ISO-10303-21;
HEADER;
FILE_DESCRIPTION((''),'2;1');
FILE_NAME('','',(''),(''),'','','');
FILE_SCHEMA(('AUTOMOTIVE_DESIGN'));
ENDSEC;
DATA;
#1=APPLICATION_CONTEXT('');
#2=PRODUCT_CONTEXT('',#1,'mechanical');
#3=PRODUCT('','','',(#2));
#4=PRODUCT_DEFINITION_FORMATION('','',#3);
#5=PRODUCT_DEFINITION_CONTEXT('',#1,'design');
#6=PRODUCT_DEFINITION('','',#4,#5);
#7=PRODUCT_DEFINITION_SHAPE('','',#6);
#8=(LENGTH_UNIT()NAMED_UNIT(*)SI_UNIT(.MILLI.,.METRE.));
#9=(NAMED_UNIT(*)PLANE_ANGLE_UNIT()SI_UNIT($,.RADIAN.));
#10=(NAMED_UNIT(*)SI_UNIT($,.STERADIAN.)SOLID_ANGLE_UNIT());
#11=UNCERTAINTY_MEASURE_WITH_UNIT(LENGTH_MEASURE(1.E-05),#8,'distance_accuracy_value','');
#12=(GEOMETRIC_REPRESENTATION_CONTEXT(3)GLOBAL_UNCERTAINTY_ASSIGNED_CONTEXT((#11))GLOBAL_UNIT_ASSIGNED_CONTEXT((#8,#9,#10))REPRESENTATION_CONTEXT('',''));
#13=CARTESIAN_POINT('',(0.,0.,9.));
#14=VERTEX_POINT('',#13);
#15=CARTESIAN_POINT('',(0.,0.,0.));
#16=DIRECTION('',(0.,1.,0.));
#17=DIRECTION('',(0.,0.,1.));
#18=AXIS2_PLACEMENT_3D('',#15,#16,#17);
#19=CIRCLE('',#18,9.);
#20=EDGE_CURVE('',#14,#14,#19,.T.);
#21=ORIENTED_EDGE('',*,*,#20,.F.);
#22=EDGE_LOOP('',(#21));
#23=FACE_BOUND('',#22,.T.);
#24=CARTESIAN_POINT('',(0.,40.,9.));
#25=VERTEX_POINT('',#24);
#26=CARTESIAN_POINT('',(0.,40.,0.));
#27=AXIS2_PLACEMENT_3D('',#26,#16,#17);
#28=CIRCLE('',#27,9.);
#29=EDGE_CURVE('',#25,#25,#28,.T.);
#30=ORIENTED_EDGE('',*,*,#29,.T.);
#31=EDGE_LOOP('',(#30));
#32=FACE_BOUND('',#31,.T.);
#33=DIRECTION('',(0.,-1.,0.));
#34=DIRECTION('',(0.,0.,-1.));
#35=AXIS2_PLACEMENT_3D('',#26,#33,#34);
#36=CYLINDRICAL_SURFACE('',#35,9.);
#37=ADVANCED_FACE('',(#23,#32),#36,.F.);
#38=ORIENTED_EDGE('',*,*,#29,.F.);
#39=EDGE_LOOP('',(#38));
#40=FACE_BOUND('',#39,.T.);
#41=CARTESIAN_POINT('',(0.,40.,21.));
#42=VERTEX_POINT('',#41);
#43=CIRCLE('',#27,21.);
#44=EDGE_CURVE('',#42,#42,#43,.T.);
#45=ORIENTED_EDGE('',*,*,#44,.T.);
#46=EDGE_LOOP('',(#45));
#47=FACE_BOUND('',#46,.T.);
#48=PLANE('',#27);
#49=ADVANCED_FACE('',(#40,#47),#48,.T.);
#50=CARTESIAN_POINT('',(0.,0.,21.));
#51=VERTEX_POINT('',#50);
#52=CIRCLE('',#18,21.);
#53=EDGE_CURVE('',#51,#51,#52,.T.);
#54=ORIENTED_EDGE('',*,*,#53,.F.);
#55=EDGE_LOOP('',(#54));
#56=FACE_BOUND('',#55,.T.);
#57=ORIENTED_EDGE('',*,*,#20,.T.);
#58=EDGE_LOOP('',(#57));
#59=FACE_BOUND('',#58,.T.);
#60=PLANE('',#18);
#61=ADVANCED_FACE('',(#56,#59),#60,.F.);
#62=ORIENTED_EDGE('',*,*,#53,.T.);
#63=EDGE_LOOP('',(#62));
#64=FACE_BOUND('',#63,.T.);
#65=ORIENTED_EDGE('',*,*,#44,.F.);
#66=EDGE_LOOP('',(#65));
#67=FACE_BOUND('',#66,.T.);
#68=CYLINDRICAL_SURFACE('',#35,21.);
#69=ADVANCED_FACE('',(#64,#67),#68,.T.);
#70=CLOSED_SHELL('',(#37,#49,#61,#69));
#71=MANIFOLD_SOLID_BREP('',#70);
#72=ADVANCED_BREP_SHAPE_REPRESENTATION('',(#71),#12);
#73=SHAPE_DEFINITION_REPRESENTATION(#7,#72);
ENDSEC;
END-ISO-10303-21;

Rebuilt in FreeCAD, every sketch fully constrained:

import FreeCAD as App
import Part
import Sketcher
from FreeCAD import Vector

doc = App.newDocument("Part")
body = doc.addObject("PartDesign::Body", "Body")

sketch1 = body.newObject("Sketcher::SketchObject", "Sketch")
sketch1.AttachmentSupport = (doc.getObject("XZ_Plane"), [""])
sketch1.MapMode = "FlatFace"
sketch1.addGeometry([
    Part.Circle(Vector(0, 0, 0), Vector(0, 0, 1), 21),
    Part.Circle(Vector(0, 0, 0), Vector(0, 0, 1), 9),
], False)
sketch1.addConstraint([
    Sketcher.Constraint("Coincident", 0, 3, -1, 1),
    Sketcher.Constraint("Coincident", 1, 3, -1, 1),
    Sketcher.Constraint("Diameter", 0, 42.0),
    Sketcher.Constraint("Diameter", 1, 18.0),
])
pad1 = body.newObject("PartDesign::Pad", "Pad")
pad1.Profile = sketch1
pad1.Length = 40
pad1.Reversed = True

doc.recompute()
